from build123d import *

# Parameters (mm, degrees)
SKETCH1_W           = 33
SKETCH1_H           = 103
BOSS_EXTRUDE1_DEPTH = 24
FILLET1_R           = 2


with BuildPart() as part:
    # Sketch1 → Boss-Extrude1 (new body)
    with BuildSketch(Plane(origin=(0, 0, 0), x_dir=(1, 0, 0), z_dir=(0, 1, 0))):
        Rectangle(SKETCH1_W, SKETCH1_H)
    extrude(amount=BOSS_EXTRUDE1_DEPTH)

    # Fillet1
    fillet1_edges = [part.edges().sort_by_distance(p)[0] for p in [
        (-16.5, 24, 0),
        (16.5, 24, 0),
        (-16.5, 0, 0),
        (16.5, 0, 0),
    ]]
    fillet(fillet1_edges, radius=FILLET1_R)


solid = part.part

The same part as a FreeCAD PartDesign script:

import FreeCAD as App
import Part
import Sketcher
from FreeCAD import Vector
Q = App.Units.Quantity


def edges_at(feature, points):
    """Names of the edges that pass closest to the given points."""
    edges = feature.Shape.Edges
    near = lambda p: min(range(len(edges)), key=lambda i: edges[i].distToShape(Part.Vertex(*p))[0])
    return sorted({f"Edge{near(p) + 1}" for p in points})


def add_polygon(sketch, points):
    """Adds a closed chain of lines whose ends are joined by coincident constraints."""
    first, n = sketch.GeometryCount, len(points)
    for a, b in zip(points, points[1:] + points[:1]):
        sketch.addGeometry(Part.LineSegment(App.Vector(*a, 0), App.Vector(*b, 0)), False)
    for i in range(n):
        sketch.addConstraint(Sketcher.Constraint("Coincident", first + i, 2, first + (i + 1) % n, 1))

doc = App.newDocument("Part")
params = doc.addObject("Spreadsheet::Sheet", "Params")
for row, (alias, value) in enumerate([
    ("sketch1_width", "33 mm"),
    ("sketch1_height", "103 mm"),
    ("pad1_length", "24 mm"),
    ("fillet_radius", "2 mm"),
], start=1):
    params.set(f"A{row}", alias)
    params.set(f"B{row}", "=" + value)
    params.setAlias(f"B{row}", alias)

body = doc.addObject("PartDesign::Body", "Body")

sketch1 = body.newObject("Sketcher::SketchObject", "Sketch")
sketch1.AttachmentSupport = (doc.getObject("XZ_Plane"), [""])
sketch1.MapMode = "FlatFace"
add_polygon(sketch1, [(-16.5, -51.5), (-16.5, 51.5), (16.5, 51.5), (16.5, -51.5)])
sketch1.addConstraint([
    Sketcher.Constraint("Vertical", 0),
    Sketcher.Constraint("Horizontal", 1),
    Sketcher.Constraint("Vertical", 2),
    Sketcher.Constraint("Horizontal", 3),
    Sketcher.Constraint("Symmetric", 0, 2, 2, 2, -1, 1),
    Sketcher.Constraint("DistanceX", 1, 1, 1, 2, Q("33 mm")),
    Sketcher.Constraint("DistanceY", 0, 1, 0, 2, Q("103 mm")),
])
sketch1.setExpression("Constraints[9]", "Params.sketch1_width")
sketch1.setExpression("Constraints[10]", "Params.sketch1_height")
pad1 = body.newObject("PartDesign::Pad", "Pad")
pad1.Profile = sketch1
pad1.setExpression("Length", "Params.pad1_length")
pad1.Reversed = True
doc.recompute()

fillet = body.newObject("PartDesign::Fillet", "Fillet")
fillet.Base = (pad1, edges_at(pad1, [
    (-16.5, 24, 0),
    (16.5, 24, 0),
    (-16.5, 0, 0),
    (16.5, 0, 0),
]))
fillet.setExpression("Radius", "Params.fillet_radius")

doc.recompute()
